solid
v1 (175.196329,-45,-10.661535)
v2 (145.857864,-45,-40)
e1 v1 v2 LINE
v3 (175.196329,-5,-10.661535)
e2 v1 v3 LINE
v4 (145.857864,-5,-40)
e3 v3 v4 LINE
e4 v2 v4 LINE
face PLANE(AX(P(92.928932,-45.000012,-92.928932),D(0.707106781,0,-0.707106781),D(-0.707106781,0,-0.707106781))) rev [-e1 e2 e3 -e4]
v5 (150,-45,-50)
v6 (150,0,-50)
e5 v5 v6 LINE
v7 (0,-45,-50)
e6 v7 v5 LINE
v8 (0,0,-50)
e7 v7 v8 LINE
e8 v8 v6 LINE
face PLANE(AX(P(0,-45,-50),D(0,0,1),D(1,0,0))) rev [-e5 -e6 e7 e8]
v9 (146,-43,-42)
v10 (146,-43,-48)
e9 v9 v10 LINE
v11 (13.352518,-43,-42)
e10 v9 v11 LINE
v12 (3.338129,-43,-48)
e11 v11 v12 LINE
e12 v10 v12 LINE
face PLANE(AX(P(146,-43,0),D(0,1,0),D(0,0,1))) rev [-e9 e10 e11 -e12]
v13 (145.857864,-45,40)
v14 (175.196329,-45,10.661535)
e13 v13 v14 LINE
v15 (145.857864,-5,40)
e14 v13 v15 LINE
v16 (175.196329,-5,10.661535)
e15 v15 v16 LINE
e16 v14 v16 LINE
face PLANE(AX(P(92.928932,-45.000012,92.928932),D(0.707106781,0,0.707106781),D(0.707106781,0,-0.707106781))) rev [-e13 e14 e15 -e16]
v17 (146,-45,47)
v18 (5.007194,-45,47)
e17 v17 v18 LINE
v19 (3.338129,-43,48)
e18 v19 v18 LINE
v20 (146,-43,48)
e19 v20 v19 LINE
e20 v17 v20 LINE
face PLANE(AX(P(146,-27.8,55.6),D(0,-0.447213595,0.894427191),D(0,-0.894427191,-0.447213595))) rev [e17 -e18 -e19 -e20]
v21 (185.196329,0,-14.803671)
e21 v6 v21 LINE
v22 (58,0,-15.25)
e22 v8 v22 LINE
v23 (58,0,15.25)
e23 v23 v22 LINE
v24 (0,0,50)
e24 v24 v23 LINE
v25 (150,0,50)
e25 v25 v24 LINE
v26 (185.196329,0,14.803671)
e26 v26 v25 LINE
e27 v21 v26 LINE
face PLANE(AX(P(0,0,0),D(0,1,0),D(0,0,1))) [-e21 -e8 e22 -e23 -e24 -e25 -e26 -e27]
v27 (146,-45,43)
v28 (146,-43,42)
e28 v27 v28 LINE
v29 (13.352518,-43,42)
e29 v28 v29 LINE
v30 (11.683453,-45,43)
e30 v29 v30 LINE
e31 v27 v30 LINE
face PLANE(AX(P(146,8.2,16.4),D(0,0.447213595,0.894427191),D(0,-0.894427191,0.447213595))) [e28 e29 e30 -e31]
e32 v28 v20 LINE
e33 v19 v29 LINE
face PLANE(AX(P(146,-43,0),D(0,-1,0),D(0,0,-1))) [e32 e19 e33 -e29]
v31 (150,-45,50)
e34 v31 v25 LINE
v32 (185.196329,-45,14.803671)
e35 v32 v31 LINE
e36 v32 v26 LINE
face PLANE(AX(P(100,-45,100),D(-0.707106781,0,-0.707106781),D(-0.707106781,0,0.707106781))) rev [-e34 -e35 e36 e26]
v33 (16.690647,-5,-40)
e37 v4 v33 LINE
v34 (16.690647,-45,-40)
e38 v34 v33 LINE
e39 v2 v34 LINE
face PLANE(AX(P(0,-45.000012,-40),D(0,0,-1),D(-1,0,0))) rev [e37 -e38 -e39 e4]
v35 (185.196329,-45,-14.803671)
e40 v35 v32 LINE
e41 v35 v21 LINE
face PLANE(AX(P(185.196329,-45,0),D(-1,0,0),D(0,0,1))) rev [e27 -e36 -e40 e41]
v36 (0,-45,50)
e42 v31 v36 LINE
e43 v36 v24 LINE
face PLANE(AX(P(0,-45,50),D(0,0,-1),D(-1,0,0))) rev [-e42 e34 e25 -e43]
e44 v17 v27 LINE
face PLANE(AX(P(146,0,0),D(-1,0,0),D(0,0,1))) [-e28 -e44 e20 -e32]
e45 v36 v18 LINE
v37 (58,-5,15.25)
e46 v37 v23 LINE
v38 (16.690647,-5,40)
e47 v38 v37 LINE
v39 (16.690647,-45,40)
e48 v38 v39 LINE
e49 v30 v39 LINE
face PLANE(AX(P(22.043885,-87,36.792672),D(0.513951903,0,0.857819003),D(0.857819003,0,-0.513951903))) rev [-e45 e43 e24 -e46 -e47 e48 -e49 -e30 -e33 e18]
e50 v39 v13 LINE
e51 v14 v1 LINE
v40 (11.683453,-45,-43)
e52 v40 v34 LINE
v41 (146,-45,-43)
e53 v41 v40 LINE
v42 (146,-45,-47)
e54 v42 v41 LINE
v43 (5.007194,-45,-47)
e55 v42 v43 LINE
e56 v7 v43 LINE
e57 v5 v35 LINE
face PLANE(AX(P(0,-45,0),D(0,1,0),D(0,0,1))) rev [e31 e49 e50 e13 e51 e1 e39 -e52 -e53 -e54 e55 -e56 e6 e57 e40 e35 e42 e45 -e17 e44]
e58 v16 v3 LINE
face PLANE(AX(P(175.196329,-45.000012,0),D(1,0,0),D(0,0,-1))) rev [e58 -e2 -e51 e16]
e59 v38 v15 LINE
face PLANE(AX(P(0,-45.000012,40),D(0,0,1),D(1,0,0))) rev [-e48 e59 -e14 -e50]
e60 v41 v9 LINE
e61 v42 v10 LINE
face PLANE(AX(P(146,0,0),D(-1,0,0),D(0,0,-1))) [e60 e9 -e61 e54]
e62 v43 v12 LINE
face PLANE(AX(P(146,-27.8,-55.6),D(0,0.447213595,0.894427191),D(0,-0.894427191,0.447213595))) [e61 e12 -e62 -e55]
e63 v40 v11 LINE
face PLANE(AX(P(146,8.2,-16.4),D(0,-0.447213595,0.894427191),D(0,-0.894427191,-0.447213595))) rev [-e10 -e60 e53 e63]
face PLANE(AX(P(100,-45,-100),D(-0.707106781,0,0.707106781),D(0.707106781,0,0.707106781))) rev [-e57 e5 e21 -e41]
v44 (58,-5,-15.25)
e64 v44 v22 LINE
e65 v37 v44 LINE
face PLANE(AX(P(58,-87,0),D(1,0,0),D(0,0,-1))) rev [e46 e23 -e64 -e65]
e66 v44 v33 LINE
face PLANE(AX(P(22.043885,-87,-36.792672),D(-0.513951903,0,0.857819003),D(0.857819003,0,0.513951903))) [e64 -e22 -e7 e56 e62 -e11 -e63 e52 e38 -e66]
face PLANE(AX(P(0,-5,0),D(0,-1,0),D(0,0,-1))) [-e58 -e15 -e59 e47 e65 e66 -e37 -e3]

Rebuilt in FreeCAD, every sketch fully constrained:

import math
import FreeCAD as App
import Part
import Sketcher

V = App.Vector


def add_polygon(sketch, points):
    """Adds a closed chain of lines whose ends are joined by coincident constraints."""
    first, n = sketch.GeometryCount, len(points)
    for a, b in zip(points, points[1:] + points[:1]):
        sketch.addGeometry(Part.LineSegment(App.Vector(*a, 0), App.Vector(*b, 0)), False)
    for i in range(n):
        sketch.addConstraint(Sketcher.Constraint("Coincident", first + i, 2, first + (i + 1) % n, 1))

doc = App.newDocument("Part")
body = doc.addObject("PartDesign::Body", "Body")

# Sketch on XZ plane
sketch1 = doc.addObject("Sketcher::SketchObject", "Sketch")
body.addObject(sketch1)
sketch1.AttachmentSupport = (doc.XZ_Plane, [""])
sketch1.MapMode = "FlatFace"
sketch1.addGeometry([
    Part.ArcOfCircle(Part.Circle(V(0, 0, 0), V(0, 0, 1), 50), math.radians(90), math.radians(270)),  # 0
    Part.LineSegment(V(0, 50, 0), V(150, 50, 0)),  # 1
    Part.LineSegment(V(150, 50, 0), V(185, 15, 0)),  # 2
    Part.LineSegment(V(185, 15, 0), V(185, -15, 0)),  # 3
    Part.LineSegment(V(185, -15, 0), V(150, -50, 0)),  # 4
    Part.LineSegment(V(150, -50, 0), V(0, -50, 0)),  # 5
], False)
sketch1.addConstraint([
    Sketcher.Constraint("Tangent", 0, 1, 1, 1),
    Sketcher.Constraint("Coincident", 1, 2, 2, 1),
    Sketcher.Constraint("Coincident", 2, 2, 3, 1),
    Sketcher.Constraint("Coincident", 3, 2, 4, 1),
    Sketcher.Constraint("Coincident", 4, 2, 5, 1),
    Sketcher.Constraint("Tangent", 5, 2, 0, 2),
    Sketcher.Constraint("Horizontal", 1),
    Sketcher.Constraint("Vertical", 3),
    Sketcher.Constraint("Horizontal", 5),
    Sketcher.Constraint("Coincident", 0, 3, -1, 1),
    Sketcher.Constraint("Perpendicular", 2, 4),
    Sketcher.Constraint("Vertical", 1, 2, 4, 2),
    Sketcher.Constraint("Equal", 2, 4),
    Sketcher.Constraint("Radius", 0, 50.0),
    Sketcher.Constraint("DistanceX", 1, 1, 1, 2, 150.0),
    Sketcher.Constraint("DistanceY", 3, 2, 3, 1, 29.607342),
])
pad1 = doc.addObject("PartDesign::Pad", "Pad")
body.addObject(pad1)
pad1.Profile = sketch1
pad1.Length = 45

# Sketch on XZ plane
sketch2 = doc.addObject("Sketcher::SketchObject", "Sketch001")
body.addObject(sketch2)
sketch2.AttachmentSupport = (doc.XZ_Plane, [""])
sketch2.MapMode = "FlatFace"
add_polygon(sketch2, [(4, 10), (44, 10), (44, -10), (4, -10)])  # lines 0-3
sketch2.addConstraint([
    Sketcher.Constraint("Horizontal", 0),
    Sketcher.Constraint("Vertical", 1),
    Sketcher.Constraint("Horizontal", 2),
    Sketcher.Constraint("Vertical", 3),
    Sketcher.Constraint("DistanceX", 0, 1, 0, 2, 40.0),
    Sketcher.Constraint("DistanceY", 1, 2, 1, 1, 20.5),
    Sketcher.Constraint("DistanceX", -1, 1, 0, 2, 44.5),
    Sketcher.Constraint("DistanceY", -1, 1, 0, 2, 10.25),
])
pocket1 = doc.addObject("PartDesign::Pocket", "Pocket")
body.addObject(pocket1)
pocket1.Profile = sketch2
pocket1.Length = 41
pocket1.Reversed = True

# Sketch on XZ plane
sketch3 = doc.addObject("Sketcher::SketchObject", "Sketch002")
body.addObject(sketch3)
sketch3.AttachmentSupport = (doc.XZ_Plane, [""])
sketch3.MapMode = "FlatFace"
add_polygon(sketch3, [(-4, -10.2), (-4, 10.2), (4.5, 10.2), (4.5, -10.2)])  # lines 0-3
sketch3.addGeometry(Part.Circle(V(0.5, 5, 0), V(0, 0, 1), 1.5), False)  # 4
sketch3.addGeometry(Part.Circle(V(0.5, -5, 0), V(0, 0, 1), 1.5), False)  # 5
add_polygon(sketch3, [(44.5, -10.2), (44.5, 10.2), (53, 10.2), (53, -10.2)])  # lines 6-9
sketch3.addGeometry(Part.Circle(V(48.5, 5, 0), V(0, 0, 1), 1.5), False)  # 10
sketch3.addGeometry(Part.Circle(V(48.5, -5, 0), V(0, 0, 1), 1.5), False)  # 11
sketch3.addConstraint([
    Sketcher.Constraint("Vertical", 0),
    Sketcher.Constraint("Horizontal", 1),
    Sketcher.Constraint("Vertical", 2),
    Sketcher.Constraint("Horizontal", 3),
    Sketcher.Constraint("Vertical", 6),
    Sketcher.Constraint("Horizontal", 7),
    Sketcher.Constraint("Vertical", 8),
    Sketcher.Constraint("Horizontal", 9),
    Sketcher.Constraint("Equal", 4, 5),
    Sketcher.Constraint("Equal", 5, 10),
    Sketcher.Constraint("Equal", 10, 11),
    Sketcher.Constraint("Symmetric", 4, 3, 5, 3, -1),
    Sketcher.Constraint("Symmetric", 10, 3, 11, 3, -1),
    Sketcher.Constraint("Horizontal", 4, 3, 10, 3),
    Sketcher.Constraint("Horizontal", 1, 2, 6, 2),
    Sketcher.Constraint("Horizontal", 3, 2, 8, 2),
    Sketcher.Constraint("Equal", 3, 7),
    Sketcher.Constraint("Diameter", 4, 3.0),
    Sketcher.Constraint("DistanceX", 1, 1, 1, 2, 8.5),
    Sketcher.Constraint("DistanceY", 0, 1, 0, 2, 20.5),
    Sketcher.Constraint("DistanceY", -1, 1, 4, 3, 5.0),
    Sketcher.Constraint("DistanceX", 0, 2, -1, 1, 4.0),
    Sketcher.Constraint("DistanceX", -1, 1, 7, 2, 53.0),
    Sketcher.Constraint("DistanceX", 4, 3, 10, 3, 48.0),
    Sketcher.Constraint("DistanceX", 4, 3, 1, 2, 4.0),
    Sketcher.Constraint("DistanceY", -1, 1, 0, 2, 10.25),
])
pocket2 = doc.addObject("PartDesign::Pocket", "Pocket001")
body.addObject(pocket2)
pocket2.Profile = sketch3
pocket2.Length = 14
pocket2.Reversed = True

# Sketch on XZ plane
sketch4 = doc.addObject("Sketcher::SketchObject", "Sketch003")
body.addObject(sketch4)
sketch4.AttachmentSupport = (doc.XZ_Plane, [""])
sketch4.MapMode = "FlatFace"
sketch4.addGeometry([
    Part.Circle(V(0.5, -5, 0), V(0, 0, 1), 1.5),
    Part.Circle(V(0.5, 5, 0), V(0, 0, 1), 1.5),
    Part.Circle(V(48.5, -5, 0), V(0, 0, 1), 1.5),
    Part.Circle(V(48.5, 5, 0), V(0, 0, 1), 1.5),
], False)
sketch4.addConstraint([
    Sketcher.Constraint("Equal", 0, 1),
    Sketcher.Constraint("Equal", 1, 2),
    Sketcher.Constraint("Equal", 2, 3),
    Sketcher.Constraint("Symmetric", 0, 3, 1, 3, -1),
    Sketcher.Constraint("Symmetric", 2, 3, 3, 3, -1),
    Sketcher.Constraint("Horizontal", 0, 3, 2, 3),
    Sketcher.Constraint("Diameter", 0, 3.0),
    Sketcher.Constraint("DistanceY", 0, 3, -1, 1, 5.0),
    Sketcher.Constraint("DistanceX", 0, 3, 2, 3, 48.0),
    Sketcher.Constraint("DistanceX", -1, 1, 0, 3, 0.5),
])
pocket3 = doc.addObject("PartDesign::Pocket", "Pocket002")
body.addObject(pocket3)
pocket3.Profile = sketch4
pocket3.Length = 19
pocket3.Reversed = True

# Sketch on XZ plane
sketch5 = doc.addObject("Sketcher::SketchObject", "Sketch004")
body.addObject(sketch5)
sketch5.AttachmentSupport = (doc.XZ_Plane, [""])
sketch5.MapMode = "FlatFace"
sketch5.addGeometry([
    Part.LineSegment(V(58, -15, 0), V(0, -50, 0)),
    Part.ArcOfCircle(Part.Circle(V(0, 0, 0), V(0, 0, 1), 50), math.radians(90), math.radians(270)),
    Part.LineSegment(V(0, 50, 0), V(58, 15, 0)),
    Part.LineSegment(V(58, 15, 0), V(58, -15, 0)),
], False)
sketch5.addConstraint([
    Sketcher.Constraint("Coincident", 0, 2, 1, 2),
    Sketcher.Constraint("Coincident", 1, 1, 2, 1),
    Sketcher.Constraint("Coincident", 2, 2, 3, 1),
    Sketcher.Constraint("Coincident", 3, 2, 0, 1),
    Sketcher.Constraint("Vertical", 3),
    Sketcher.Constraint("Coincident", 1, 3, -1, 1),
    Sketcher.Constraint("PointOnObject", 0, 2, -2),
    Sketcher.Constraint("PointOnObject", 1, 1, -2),
    Sketcher.Constraint("Equal", 0, 2),
    Sketcher.Constraint("Radius", 1, 50.0),
    Sketcher.Constraint("DistanceY", 3, 2, 3, 1, 30.5),
    Sketcher.Constraint("DistanceX", -1, 1, 2, 2, 58.0),
])
pocket4 = doc.addObject("PartDesign::Pocket", "Pocket003")
body.addObject(pocket4)
pocket4.Profile = sketch5
pocket4.Length = 87
pocket4.Reversed = True

# Sketch on XZ plane
sketch6 = doc.addObject("Sketcher::SketchObject", "Sketch005")
body.addObject(sketch6)
sketch6.AttachmentSupport = (doc.XZ_Plane, [""])
sketch6.MapMode = "FlatFace"
sketch6.AttachmentOffset = App.Placement(V(0, 0, 45), App.Rotation())
add_polygon(sketch6, [(17, 40), (58, 15), (58, -15), (17, -40), (146, -40), (175, -11), (175, 11), (146, 40)])  # lines 0-7
sketch6.addConstraint([
    Sketcher.Constraint("Vertical", 1),
    Sketcher.Constraint("Horizontal", 3),
    Sketcher.Constraint("Vertical", 5),
    Sketcher.Constraint("Horizontal", 7),
    Sketcher.Constraint("Symmetric", 3, 2, 6, 2, -1),
    Sketcher.Constraint("Perpendicular", 4, 6),
    Sketcher.Constraint("Vertical", 2, 2, 7, 2),
    Sketcher.Constraint("Equal", 0, 2),
    Sketcher.Constraint("Equal", 4, 6),
    Sketcher.Constraint("DistanceY", 1, 2, 1, 1, 30.5),
    Sketcher.Constraint("DistanceX", -1, 1, 0, 2, 58.0),
    Sketcher.Constraint("DistanceY", 2, 2, -1, 1, 40.0),
    Sketcher.Constraint("DistanceY", 5, 1, 5, 2, 21.323071),
    Sketcher.Constraint("DistanceX", 3, 1, 3, 2, 129.167217),
    Sketcher.Constraint("DistanceX", -1, 1, 4, 2, 175.196329),
])
pocket5 = doc.addObject("PartDesign::Pocket", "Pocket004")
body.addObject(pocket5)
pocket5.Profile = sketch6
pocket5.Type = "TwoLengths"
pocket5.Length = 198.034719
pocket5.Length2 = 40
pocket5.Reversed = True

# Sketch on YZ plane
sketch7 = doc.addObject("Sketcher::SketchObject", "Sketch006")
body.addObject(sketch7)
sketch7.AttachmentSupport = (doc.YZ_Plane, [""])
sketch7.MapMode = "FlatFace"
add_polygon(sketch7, [(-45, 43), (-45, 47), (-43, 48), (-43, 42)])  # lines 0-3
sketch7.addConstraint([
    Sketcher.Constraint("Vertical", 0),
    Sketcher.Constraint("Vertical", 2),
    Sketcher.Constraint("Equal", 1, 3),
    Sketcher.Constraint("DistanceY", 0, 1, 0, 2, 4.0),
    Sketcher.Constraint("DistanceY", 2, 2, 2, 1, 6.0),
    Sketcher.Constraint("DistanceX", 0, 2, -1, 1, 45.0),
    Sketcher.Constraint("DistanceY", -1, 1, 0, 2, 47.0),
    Sketcher.Constraint("DistanceX", 1, 2, -1, 1, 43.0),
])
pocket6 = doc.addObject("PartDesign::Pocket", "Pocket005")
body.addObject(pocket6)
pocket6.Profile = sketch7
pocket6.Length = 146
pocket6.Reversed = True
doc.recompute()

mirrored = doc.addObject("PartDesign::Mirrored", "Mirrored")
body.addObject(mirrored)
mirrored.Originals = [pocket6]
mirrored.MirrorPlane = (doc.XY_Plane, [""])
body.Tip = mirrored

doc.recompute()
